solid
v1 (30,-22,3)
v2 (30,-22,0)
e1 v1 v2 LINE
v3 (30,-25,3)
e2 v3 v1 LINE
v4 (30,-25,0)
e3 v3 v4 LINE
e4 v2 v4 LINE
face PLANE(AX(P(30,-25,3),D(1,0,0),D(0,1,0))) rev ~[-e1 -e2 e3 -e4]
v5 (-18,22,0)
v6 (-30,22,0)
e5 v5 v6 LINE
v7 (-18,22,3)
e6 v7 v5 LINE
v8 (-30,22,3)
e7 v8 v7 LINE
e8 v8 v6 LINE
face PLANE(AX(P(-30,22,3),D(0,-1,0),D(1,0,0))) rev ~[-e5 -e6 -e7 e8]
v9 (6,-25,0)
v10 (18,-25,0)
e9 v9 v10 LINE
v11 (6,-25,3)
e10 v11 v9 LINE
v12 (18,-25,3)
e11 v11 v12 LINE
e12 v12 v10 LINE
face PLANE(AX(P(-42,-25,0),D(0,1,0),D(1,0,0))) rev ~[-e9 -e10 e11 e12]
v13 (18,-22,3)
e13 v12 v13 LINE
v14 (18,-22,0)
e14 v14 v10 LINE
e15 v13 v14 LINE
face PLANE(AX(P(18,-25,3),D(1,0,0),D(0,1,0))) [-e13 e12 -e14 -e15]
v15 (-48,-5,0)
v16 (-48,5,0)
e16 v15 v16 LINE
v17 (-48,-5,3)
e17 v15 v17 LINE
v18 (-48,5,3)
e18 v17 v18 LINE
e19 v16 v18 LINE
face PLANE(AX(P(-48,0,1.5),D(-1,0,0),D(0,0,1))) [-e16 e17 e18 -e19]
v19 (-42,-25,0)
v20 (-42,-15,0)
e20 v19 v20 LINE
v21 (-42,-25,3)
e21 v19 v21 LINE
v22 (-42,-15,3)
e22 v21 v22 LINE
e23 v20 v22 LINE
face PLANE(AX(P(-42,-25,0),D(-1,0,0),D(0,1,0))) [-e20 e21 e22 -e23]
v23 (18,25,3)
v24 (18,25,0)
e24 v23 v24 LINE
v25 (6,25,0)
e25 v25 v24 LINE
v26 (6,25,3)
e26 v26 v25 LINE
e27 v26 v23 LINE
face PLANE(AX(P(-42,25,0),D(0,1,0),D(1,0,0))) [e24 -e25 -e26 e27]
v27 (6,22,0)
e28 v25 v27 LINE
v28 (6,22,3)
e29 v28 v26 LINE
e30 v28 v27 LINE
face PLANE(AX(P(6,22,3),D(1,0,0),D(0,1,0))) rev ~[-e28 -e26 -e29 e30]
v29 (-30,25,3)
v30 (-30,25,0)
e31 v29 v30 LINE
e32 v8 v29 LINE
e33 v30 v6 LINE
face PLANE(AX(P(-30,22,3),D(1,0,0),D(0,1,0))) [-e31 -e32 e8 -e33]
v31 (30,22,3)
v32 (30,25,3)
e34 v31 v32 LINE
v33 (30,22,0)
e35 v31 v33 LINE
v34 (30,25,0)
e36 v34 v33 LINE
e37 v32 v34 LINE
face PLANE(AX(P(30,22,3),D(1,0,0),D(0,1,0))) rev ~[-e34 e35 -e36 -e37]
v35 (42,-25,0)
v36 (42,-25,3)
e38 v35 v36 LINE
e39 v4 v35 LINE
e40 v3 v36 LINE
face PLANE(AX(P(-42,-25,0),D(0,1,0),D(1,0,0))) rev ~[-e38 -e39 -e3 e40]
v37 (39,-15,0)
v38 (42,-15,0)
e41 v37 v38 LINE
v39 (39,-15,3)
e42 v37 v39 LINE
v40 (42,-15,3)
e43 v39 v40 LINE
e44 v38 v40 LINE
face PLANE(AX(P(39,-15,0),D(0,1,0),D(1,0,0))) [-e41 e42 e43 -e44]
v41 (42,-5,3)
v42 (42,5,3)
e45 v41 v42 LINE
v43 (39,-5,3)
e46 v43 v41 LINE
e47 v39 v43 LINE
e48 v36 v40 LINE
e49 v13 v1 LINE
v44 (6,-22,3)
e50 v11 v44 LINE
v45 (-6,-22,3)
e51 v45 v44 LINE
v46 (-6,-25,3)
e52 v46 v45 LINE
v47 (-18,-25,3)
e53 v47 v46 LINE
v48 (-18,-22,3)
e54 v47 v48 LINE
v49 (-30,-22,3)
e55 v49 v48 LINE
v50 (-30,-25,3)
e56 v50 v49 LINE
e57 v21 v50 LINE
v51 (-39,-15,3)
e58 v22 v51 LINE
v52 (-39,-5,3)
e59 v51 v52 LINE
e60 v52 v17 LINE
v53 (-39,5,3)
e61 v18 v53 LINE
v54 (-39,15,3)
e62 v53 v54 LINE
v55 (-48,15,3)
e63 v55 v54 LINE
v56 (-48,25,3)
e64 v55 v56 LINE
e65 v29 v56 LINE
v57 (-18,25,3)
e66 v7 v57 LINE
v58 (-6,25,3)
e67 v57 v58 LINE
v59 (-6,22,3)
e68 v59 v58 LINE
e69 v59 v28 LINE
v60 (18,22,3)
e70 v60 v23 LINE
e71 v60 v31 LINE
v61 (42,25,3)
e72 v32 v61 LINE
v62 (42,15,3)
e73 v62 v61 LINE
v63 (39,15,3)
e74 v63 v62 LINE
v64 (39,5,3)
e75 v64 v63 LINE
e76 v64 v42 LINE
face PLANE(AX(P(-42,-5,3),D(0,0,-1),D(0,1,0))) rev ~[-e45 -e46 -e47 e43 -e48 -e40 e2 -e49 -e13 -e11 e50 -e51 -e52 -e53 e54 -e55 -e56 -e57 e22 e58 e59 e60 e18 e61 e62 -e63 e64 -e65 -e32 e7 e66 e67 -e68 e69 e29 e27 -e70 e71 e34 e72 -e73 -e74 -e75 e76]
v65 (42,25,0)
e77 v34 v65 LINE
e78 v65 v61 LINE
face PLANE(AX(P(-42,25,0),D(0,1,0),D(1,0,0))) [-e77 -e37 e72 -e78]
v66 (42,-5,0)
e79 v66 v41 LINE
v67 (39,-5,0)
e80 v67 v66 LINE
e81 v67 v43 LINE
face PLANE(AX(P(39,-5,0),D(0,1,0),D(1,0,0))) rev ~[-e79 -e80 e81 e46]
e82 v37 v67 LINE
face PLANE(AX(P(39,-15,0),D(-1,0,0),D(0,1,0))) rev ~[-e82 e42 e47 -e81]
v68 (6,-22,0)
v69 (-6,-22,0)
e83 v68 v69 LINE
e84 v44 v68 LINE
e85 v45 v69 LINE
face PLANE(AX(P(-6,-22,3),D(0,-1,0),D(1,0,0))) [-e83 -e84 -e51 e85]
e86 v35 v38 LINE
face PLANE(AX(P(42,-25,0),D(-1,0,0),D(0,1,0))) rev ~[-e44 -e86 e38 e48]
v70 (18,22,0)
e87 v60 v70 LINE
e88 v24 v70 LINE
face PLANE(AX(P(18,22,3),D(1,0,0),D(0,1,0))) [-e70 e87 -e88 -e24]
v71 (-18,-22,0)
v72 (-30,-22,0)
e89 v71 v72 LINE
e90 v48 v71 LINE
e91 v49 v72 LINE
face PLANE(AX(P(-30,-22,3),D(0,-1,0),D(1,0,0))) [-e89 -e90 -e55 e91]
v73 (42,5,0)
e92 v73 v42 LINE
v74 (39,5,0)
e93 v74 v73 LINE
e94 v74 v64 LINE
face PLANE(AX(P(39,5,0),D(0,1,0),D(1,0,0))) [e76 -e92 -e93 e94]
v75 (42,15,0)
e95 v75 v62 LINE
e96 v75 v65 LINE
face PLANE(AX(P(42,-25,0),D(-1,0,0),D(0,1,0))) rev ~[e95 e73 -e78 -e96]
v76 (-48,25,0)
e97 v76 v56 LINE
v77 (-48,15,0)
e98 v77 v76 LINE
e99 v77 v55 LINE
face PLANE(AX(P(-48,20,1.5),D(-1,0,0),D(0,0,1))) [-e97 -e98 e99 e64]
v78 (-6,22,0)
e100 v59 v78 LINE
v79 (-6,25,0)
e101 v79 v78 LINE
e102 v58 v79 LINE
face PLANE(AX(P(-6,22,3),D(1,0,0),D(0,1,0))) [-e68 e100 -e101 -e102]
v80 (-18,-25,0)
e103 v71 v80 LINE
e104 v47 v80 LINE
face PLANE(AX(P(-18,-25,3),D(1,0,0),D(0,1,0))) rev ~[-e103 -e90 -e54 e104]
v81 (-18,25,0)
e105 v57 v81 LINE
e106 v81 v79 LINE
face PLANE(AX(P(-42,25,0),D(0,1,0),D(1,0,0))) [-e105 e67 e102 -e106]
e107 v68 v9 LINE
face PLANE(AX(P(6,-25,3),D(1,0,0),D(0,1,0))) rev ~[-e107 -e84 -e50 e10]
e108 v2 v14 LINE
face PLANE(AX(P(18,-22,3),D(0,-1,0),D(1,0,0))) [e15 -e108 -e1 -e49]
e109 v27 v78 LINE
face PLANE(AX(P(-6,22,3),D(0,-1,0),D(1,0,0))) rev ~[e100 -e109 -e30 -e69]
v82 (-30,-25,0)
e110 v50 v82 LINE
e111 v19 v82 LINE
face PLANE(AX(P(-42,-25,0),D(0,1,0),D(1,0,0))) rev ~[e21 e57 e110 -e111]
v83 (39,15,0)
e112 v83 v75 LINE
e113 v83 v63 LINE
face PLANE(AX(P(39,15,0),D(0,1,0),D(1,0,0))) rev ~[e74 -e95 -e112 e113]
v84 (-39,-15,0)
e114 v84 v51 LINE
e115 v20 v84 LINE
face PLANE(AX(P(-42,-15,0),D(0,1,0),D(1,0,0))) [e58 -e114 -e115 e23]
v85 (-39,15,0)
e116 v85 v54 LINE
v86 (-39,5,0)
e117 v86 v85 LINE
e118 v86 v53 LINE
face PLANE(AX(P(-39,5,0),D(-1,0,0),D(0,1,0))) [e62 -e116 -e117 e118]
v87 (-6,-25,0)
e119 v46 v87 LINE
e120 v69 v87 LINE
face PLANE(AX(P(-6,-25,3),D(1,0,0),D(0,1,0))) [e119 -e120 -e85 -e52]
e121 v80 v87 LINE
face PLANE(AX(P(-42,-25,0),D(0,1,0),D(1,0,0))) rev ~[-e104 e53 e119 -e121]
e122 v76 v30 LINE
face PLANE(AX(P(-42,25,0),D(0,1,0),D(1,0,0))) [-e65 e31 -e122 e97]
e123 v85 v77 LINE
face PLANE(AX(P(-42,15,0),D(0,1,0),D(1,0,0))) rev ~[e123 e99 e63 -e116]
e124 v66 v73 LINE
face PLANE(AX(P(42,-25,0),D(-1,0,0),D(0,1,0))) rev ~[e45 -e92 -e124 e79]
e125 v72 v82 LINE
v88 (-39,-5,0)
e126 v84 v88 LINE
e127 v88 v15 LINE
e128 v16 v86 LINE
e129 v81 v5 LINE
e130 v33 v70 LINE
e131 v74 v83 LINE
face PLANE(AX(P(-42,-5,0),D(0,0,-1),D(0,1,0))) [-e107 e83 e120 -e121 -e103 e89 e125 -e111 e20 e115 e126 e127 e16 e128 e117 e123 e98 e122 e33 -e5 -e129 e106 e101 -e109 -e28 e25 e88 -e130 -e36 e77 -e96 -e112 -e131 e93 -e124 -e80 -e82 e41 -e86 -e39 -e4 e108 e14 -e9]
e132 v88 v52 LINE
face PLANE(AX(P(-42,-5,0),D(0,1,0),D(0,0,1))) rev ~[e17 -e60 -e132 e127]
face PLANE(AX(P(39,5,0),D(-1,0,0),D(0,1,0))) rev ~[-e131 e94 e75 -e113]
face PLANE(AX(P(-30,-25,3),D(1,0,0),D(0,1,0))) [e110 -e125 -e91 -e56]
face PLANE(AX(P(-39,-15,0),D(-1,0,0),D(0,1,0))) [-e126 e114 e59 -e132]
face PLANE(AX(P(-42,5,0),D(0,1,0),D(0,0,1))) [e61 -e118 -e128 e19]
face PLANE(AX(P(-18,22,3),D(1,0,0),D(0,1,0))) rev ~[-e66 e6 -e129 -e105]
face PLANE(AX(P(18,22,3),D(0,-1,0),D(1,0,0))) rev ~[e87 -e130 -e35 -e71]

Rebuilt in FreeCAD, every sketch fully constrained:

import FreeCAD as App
import Part
import Sketcher
Q = App.Units.Quantity


def add_polygon(sketch, points):
    """Adds a closed chain of lines whose ends are joined by coincident constraints."""
    first, n = sketch.GeometryCount, len(points)
    for a, b in zip(points, points[1:] + points[:1]):
        sketch.addGeometry(Part.LineSegment(App.Vector(*a, 0), App.Vector(*b, 0)), False)
    for i in range(n):
        sketch.addConstraint(Sketcher.Constraint("Coincident", first + i, 2, first + (i + 1) % n, 1))

doc = App.newDocument("Part")
params = doc.addObject("Spreadsheet::Sheet", "Params")
for row, (alias, value) in enumerate([
    ("sketch1_width", "84 mm"),
    ("sketch1_height", "50 mm"),
    ("pad1_length", "3 mm"),
    ("sketch2_width", "12 mm"),
    ("sketch2_height", "3 mm"),
    ("sketch3_width", "12 mm"),
    ("sketch3_height", "3 mm"),
    ("sketch4_width", "12 mm"),
    ("sketch4_height", "3 mm"),
    ("sketch5_width", "12 mm"),
    ("sketch5_height", "3 mm"),
    ("sketch6_width", "12 mm"),
    ("sketch6_height", "3 mm"),
    ("sketch7_width", "12 mm"),
    ("sketch7_height", "3 mm"),
    ("sketch8_width", "3 mm"),
    ("sketch8_height", "10 mm"),
    ("sketch9_width", "3 mm"),
    ("sketch9_height", "10 mm"),
    ("sketch10_width", "3 mm"),
    ("sketch10_height", "10 mm"),
    ("sketch11_width", "3 mm"),
    ("sketch11_height", "10 mm"),
    ("sketch12_width", "10 mm"),
    ("sketch12_height", "3 mm"),
    ("pad2_length", "6 mm"),
], start=1):
    params.set(f"A{row}", alias)
    params.set(f"B{row}", "=" + value)
    params.setAlias(f"B{row}", alias)

body = doc.addObject("PartDesign::Body", "Body")

sketch1 = body.newObject("Sketcher::SketchObject", "Sketch")
sketch1.AttachmentSupport = (doc.getObject("XY_Plane"), [""])
sketch1.MapMode = "FlatFace"
add_polygon(sketch1, [(-42, 25), (-42, -25), (42, -25), (42, 25)])
sketch1.addConstraint(Sketcher.Constraint("Vertical", 0))
sketch1.addConstraint(Sketcher.Constraint("Horizontal", 1))
sketch1.addConstraint(Sketcher.Constraint("Vertical", 2))
sketch1.addConstraint(Sketcher.Constraint("Horizontal", 3))
sketch1.addConstraint(Sketcher.Constraint("Symmetric", 0, 2, 2, 2, -1, 1))
sketch1.addConstraint(Sketcher.Constraint("DistanceX", 1, 1, 1, 2, Q("84 mm")))
sketch1.addConstraint(Sketcher.Constraint("DistanceY", 0, 2, 0, 1, Q("50 mm")))
sketch1.setExpression("Constraints[9]", "Params.sketch1_width")
sketch1.setExpression("Constraints[10]", "Params.sketch1_height")
pad1 = body.newObject("PartDesign::Pad", "Pad")
pad1.Profile = sketch1
pad1.setExpression("Length", "Params.pad1_length")

sketch2 = body.newObject("Sketcher::SketchObject", "Sketch001")
sketch2.AttachmentSupport = (doc.getObject("XY_Plane"), [""])
sketch2.MapMode = "FlatFace"
sketch2.AttachmentOffset = App.Placement(App.Vector(0, 0, 3), App.Rotation())
add_polygon(sketch2, [(18, 25), (18, 22), (30, 22), (30, 25)])
sketch2.addConstraint(Sketcher.Constraint("Vertical", 0))
sketch2.addConstraint(Sketcher.Constraint("Horizontal", 1))
sketch2.addConstraint(Sketcher.Constraint("Vertical", 2))
sketch2.addConstraint(Sketcher.Constraint("Horizontal", 3))
sketch2.addConstraint(Sketcher.Constraint("DistanceX", 1, 1, 1, 2, Q("12 mm")))
sketch2.addConstraint(Sketcher.Constraint("DistanceY", 0, 2, 0, 1, Q("3 mm")))
sketch2.addConstraint(Sketcher.Constraint("DistanceX", -1, 1, 0, 2, Q("18 mm")))
sketch2.addConstraint(Sketcher.Constraint("DistanceY", -1, 1, 0, 2, Q("22 mm")))
sketch2.setExpression("Constraints[8]", "Params.sketch2_width")
sketch2.setExpression("Constraints[9]", "Params.sketch2_height")
pocket1 = body.newObject("PartDesign::Pocket", "Pocket")
pocket1.Profile = sketch2
pocket1.Type = "UpToFirst"

sketch3 = body.newObject("Sketcher::SketchObject", "Sketch002")
sketch3.AttachmentSupport = (doc.getObject("XY_Plane"), [""])
sketch3.MapMode = "FlatFace"
sketch3.AttachmentOffset = App.Placement(App.Vector(0, 0, 3), App.Rotation())
add_polygon(sketch3, [(-30, 25), (-30, 22), (-18, 22), (-18, 25)])
sketch3.addConstraint(Sketcher.Constraint("Vertical", 0))
sketch3.addConstraint(Sketcher.Constraint("Horizontal", 1))
sketch3.addConstraint(Sketcher.Constraint("Vertical", 2))
sketch3.addConstraint(Sketcher.Constraint("Horizontal", 3))
sketch3.addConstraint(Sketcher.Constraint("DistanceX", 1, 1, 1, 2, Q("12 mm")))
sketch3.addConstraint(Sketcher.Constraint("DistanceY", 0, 2, 0, 1, Q("3 mm")))
sketch3.addConstraint(Sketcher.Constraint("DistanceX", 0, 2, -1, 1, Q("30 mm")))
sketch3.addConstraint(Sketcher.Constraint("DistanceY", -1, 1, 0, 2, Q("22 mm")))
sketch3.setExpression("Constraints[8]", "Params.sketch3_width")
sketch3.setExpression("Constraints[9]", "Params.sketch3_height")
pocket2 = body.newObject("PartDesign::Pocket", "Pocket001")
pocket2.Profile = sketch3
pocket2.Type = "UpToFirst"

sketch4 = body.newObject("Sketcher::SketchObject", "Sketch003")
sketch4.AttachmentSupport = (doc.getObject("XY_Plane"), [""])
sketch4.MapMode = "FlatFace"
sketch4.AttachmentOffset = App.Placement(App.Vector(0, 0, 3), App.Rotation())
add_polygon(sketch4, [(-6, 25), (-6, 22), (6, 22), (6, 25)])
sketch4.addConstraint(Sketcher.Constraint("Vertical", 0))
sketch4.addConstraint(Sketcher.Constraint("Horizontal", 1))
sketch4.addConstraint(Sketcher.Constraint("Vertical", 2))
sketch4.addConstraint(Sketcher.Constraint("Horizontal", 3))
sketch4.addConstraint(Sketcher.Constraint("DistanceX", 1, 1, 1, 2, Q("12 mm")))
sketch4.addConstraint(Sketcher.Constraint("DistanceY", 0, 2, 0, 1, Q("3 mm")))
sketch4.addConstraint(Sketcher.Constraint("DistanceX", 0, 2, -1, 1, Q("6 mm")))
sketch4.addConstraint(Sketcher.Constraint("DistanceY", -1, 1, 0, 2, Q("22 mm")))
sketch4.setExpression("Constraints[8]", "Params.sketch4_width")
sketch4.setExpression("Constraints[9]", "Params.sketch4_height")
pocket3 = body.newObject("PartDesign::Pocket", "Pocket002")
pocket3.Profile = sketch4
pocket3.Type = "UpToFirst"

sketch5 = body.newObject("Sketcher::SketchObject", "Sketch004")
sketch5.AttachmentSupport = (doc.getObject("XY_Plane"), [""])
sketch5.MapMode = "FlatFace"
sketch5.AttachmentOffset = App.Placement(App.Vector(0, 0, 3), App.Rotation())
add_polygon(sketch5, [(-6, -22), (-6, -25), (6, -25), (6, -22)])
sketch5.addConstraint(Sketcher.Constraint("Vertical", 0))
sketch5.addConstraint(Sketcher.Constraint("Horizontal", 1))
sketch5.addConstraint(Sketcher.Constraint("Vertical", 2))
sketch5.addConstraint(Sketcher.Constraint("Horizontal", 3))
sketch5.addConstraint(Sketcher.Constraint("DistanceX", 1, 1, 1, 2, Q("12 mm")))
sketch5.addConstraint(Sketcher.Constraint("DistanceY", 0, 2, 0, 1, Q("3 mm")))
sketch5.addConstraint(Sketcher.Constraint("DistanceX", 0, 2, -1, 1, Q("6 mm")))
sketch5.addConstraint(Sketcher.Constraint("DistanceY", 0, 2, -1, 1, Q("25 mm")))
sketch5.setExpression("Constraints[8]", "Params.sketch5_width")
sketch5.setExpression("Constraints[9]", "Params.sketch5_height")
pocket4 = body.newObject("PartDesign::Pocket", "Pocket003")
pocket4.Profile = sketch5
pocket4.Type = "UpToFirst"

sketch6 = body.newObject("Sketcher::SketchObject", "Sketch005")
sketch6.AttachmentSupport = (doc.getObject("XY_Plane"), [""])
sketch6.MapMode = "FlatFace"
sketch6.AttachmentOffset = App.Placement(App.Vector(0, 0, 3), App.Rotation())
add_polygon(sketch6, [(-30, -22), (-30, -25), (-18, -25), (-18, -22)])
sketch6.addConstraint(Sketcher.Constraint("Vertical", 0))
sketch6.addConstraint(Sketcher.Constraint("Horizontal", 1))
sketch6.addConstraint(Sketcher.Constraint("Vertical", 2))
sketch6.addConstraint(Sketcher.Constraint("Horizontal", 3))
sketch6.addConstraint(Sketcher.Constraint("DistanceX", 1, 1, 1, 2, Q("12 mm")))
sketch6.addConstraint(Sketcher.Constraint("DistanceY", 0, 2, 0, 1, Q("3 mm")))
sketch6.addConstraint(Sketcher.Constraint("DistanceX", 0, 2, -1, 1, Q("30 mm")))
sketch6.addConstraint(Sketcher.Constraint("DistanceY", 0, 2, -1, 1, Q("25 mm")))
sketch6.setExpression("Constraints[8]", "Params.sketch6_width")
sketch6.setExpression("Constraints[9]", "Params.sketch6_height")
pocket5 = body.newObject("PartDesign::Pocket", "Pocket004")
pocket5.Profile = sketch6
pocket5.Type = "UpToFirst"

sketch7 = body.newObject("Sketcher::SketchObject", "Sketch006")
sketch7.AttachmentSupport = (doc.getObject("XY_Plane"), [""])
sketch7.MapMode = "FlatFace"
sketch7.AttachmentOffset = App.Placement(App.Vector(0, 0, 3), App.Rotation())
add_polygon(sketch7, [(18, -22), (18, -25), (30, -25), (30, -22)])
sketch7.addConstraint(Sketcher.Constraint("Vertical", 0))
sketch7.addConstraint(Sketcher.Constraint("Horizontal", 1))
sketch7.addConstraint(Sketcher.Constraint("Vertical", 2))
sketch7.addConstraint(Sketcher.Constraint("Horizontal", 3))
sketch7.addConstraint(Sketcher.Constraint("DistanceX", 1, 1, 1, 2, Q("12 mm")))
sketch7.addConstraint(Sketcher.Constraint("DistanceY", 0, 2, 0, 1, Q("3 mm")))
sketch7.addConstraint(Sketcher.Constraint("DistanceX", -1, 1, 0, 2, Q("18 mm")))
sketch7.addConstraint(Sketcher.Constraint("DistanceY", 0, 2, -1, 1, Q("25 mm")))
sketch7.setExpression("Constraints[8]", "Params.sketch7_width")
sketch7.setExpression("Constraints[9]", "Params.sketch7_height")
pocket6 = body.newObject("PartDesign::Pocket", "Pocket005")
pocket6.Profile = sketch7
pocket6.Type = "UpToFirst"

sketch8 = body.newObject("Sketcher::SketchObject", "Sketch007")
sketch8.AttachmentSupport = (doc.getObject("XY_Plane"), [""])
sketch8.MapMode = "FlatFace"
add_polygon(sketch8, [(39, 15), (39, 5), (42, 5), (42, 15)])
sketch8.addConstraint(Sketcher.Constraint("Vertical", 0))
sketch8.addConstraint(Sketcher.Constraint("Horizontal", 1))
sketch8.addConstraint(Sketcher.Constraint("Vertical", 2))
sketch8.addConstraint(Sketcher.Constraint("Horizontal", 3))
sketch8.addConstraint(Sketcher.Constraint("DistanceX", 1, 1, 1, 2, Q("3 mm")))
sketch8.addConstraint(Sketcher.Constraint("DistanceY", 0, 2, 0, 1, Q("10 mm")))
sketch8.addConstraint(Sketcher.Constraint("DistanceX", -1, 1, 0, 2, Q("39 mm")))
sketch8.addConstraint(Sketcher.Constraint("DistanceY", -1, 1, 0, 2, Q("5 mm")))
sketch8.setExpression("Constraints[8]", "Params.sketch8_width")
sketch8.setExpression("Constraints[9]", "Params.sketch8_height")
pocket7 = body.newObject("PartDesign::Pocket", "Pocket006")
pocket7.Profile = sketch8
pocket7.Type = "UpToFirst"
pocket7.Reversed = True

sketch9 = body.newObject("Sketcher::SketchObject", "Sketch008")
sketch9.AttachmentSupport = (doc.getObject("XY_Plane"), [""])
sketch9.MapMode = "FlatFace"
add_polygon(sketch9, [(-42, 15), (-42, 5), (-39, 5), (-39, 15)])
sketch9.addConstraint(Sketcher.Constraint("Vertical", 0))
sketch9.addConstraint(Sketcher.Constraint("Horizontal", 1))
sketch9.addConstraint(Sketcher.Constraint("Vertical", 2))
sketch9.addConstraint(Sketcher.Constraint("Horizontal", 3))
sketch9.addConstraint(Sketcher.Constraint("DistanceX", 1, 1, 1, 2, Q("3 mm")))
sketch9.addConstraint(Sketcher.Constraint("DistanceY", 0, 2, 0, 1, Q("10 mm")))
sketch9.addConstraint(Sketcher.Constraint("DistanceX", 0, 2, -1, 1, Q("42 mm")))
sketch9.addConstraint(Sketcher.Constraint("DistanceY", -1, 1, 0, 2, Q("5 mm")))
sketch9.setExpression("Constraints[8]", "Params.sketch9_width")
sketch9.setExpression("Constraints[9]", "Params.sketch9_height")
pocket8 = body.newObject("PartDesign::Pocket", "Pocket007")
pocket8.Profile = sketch9
pocket8.Type = "UpToFirst"
pocket8.Reversed = True

sketch10 = body.newObject("Sketcher::SketchObject", "Sketch009")
sketch10.AttachmentSupport = (doc.getObject("XY_Plane"), [""])
sketch10.MapMode = "FlatFace"
add_polygon(sketch10, [(-42, -5), (-42, -15), (-39, -15), (-39, -5)])
sketch10.addConstraint(Sketcher.Constraint("Vertical", 0))
sketch10.addConstraint(Sketcher.Constraint("Horizontal", 1))
sketch10.addConstraint(Sketcher.Constraint("Vertical", 2))
sketch10.addConstraint(Sketcher.Constraint("Horizontal", 3))
sketch10.addConstraint(Sketcher.Constraint("DistanceX", 1, 1, 1, 2, Q("3 mm")))
sketch10.addConstraint(Sketcher.Constraint("DistanceY", 0, 2, 0, 1, Q("10 mm")))
sketch10.addConstraint(Sketcher.Constraint("DistanceX", 0, 2, -1, 1, Q("42 mm")))
sketch10.addConstraint(Sketcher.Constraint("DistanceY", 0, 2, -1, 1, Q("15 mm")))
sketch10.setExpression("Constraints[8]", "Params.sketch10_width")
sketch10.setExpression("Constraints[9]", "Params.sketch10_height")
pocket9 = body.newObject("PartDesign::Pocket", "Pocket008")
pocket9.Profile = sketch10
pocket9.Type = "UpToFirst"
pocket9.Reversed = True

sketch11 = body.newObject("Sketcher::SketchObject", "Sketch010")
sketch11.AttachmentSupport = (doc.getObject("XY_Plane"), [""])
sketch11.MapMode = "FlatFace"
add_polygon(sketch11, [(39, -5), (39, -15), (42, -15), (42, -5)])
sketch11.addConstraint(Sketcher.Constraint("Vertical", 0))
sketch11.addConstraint(Sketcher.Constraint("Horizontal", 1))
sketch11.addConstraint(Sketcher.Constraint("Vertical", 2))
sketch11.addConstraint(Sketcher.Constraint("Horizontal", 3))
sketch11.addConstraint(Sketcher.Constraint("DistanceX", 1, 1, 1, 2, Q("3 mm")))
sketch11.addConstraint(Sketcher.Constraint("DistanceY", 0, 2, 0, 1, Q("10 mm")))
sketch11.addConstraint(Sketcher.Constraint("DistanceX", -1, 1, 0, 2, Q("39 mm")))
sketch11.addConstraint(Sketcher.Constraint("DistanceY", 0, 2, -1, 1, Q("15 mm")))
sketch11.setExpression("Constraints[8]", "Params.sketch11_width")
sketch11.setExpression("Constraints[9]", "Params.sketch11_height")
pocket10 = body.newObject("PartDesign::Pocket", "Pocket009")
pocket10.Profile = sketch11
pocket10.Type = "UpToFirst"
pocket10.Reversed = True

sketch12 = body.newObject("Sketcher::SketchObject", "Sketch011")
sketch12.AttachmentSupport = (doc.getObject("YZ_Plane"), [""])
sketch12.MapMode = "FlatFace"
sketch12.AttachmentOffset = App.Placement(App.Vector(0, 0, -42), App.Rotation())
add_polygon(sketch12, [(5, 0), (-5, 0), (-5, 3), (5, 3)])
add_polygon(sketch12, [(25, 0), (15, 0), (15, 3), (25, 3)])
sketch12.addConstraint(Sketcher.Constraint("Horizontal", 0))
sketch12.addConstraint(Sketcher.Constraint("Vertical", 1))
sketch12.addConstraint(Sketcher.Constraint("Horizontal", 2))
sketch12.addConstraint(Sketcher.Constraint("Vertical", 3))
sketch12.addConstraint(Sketcher.Constraint("Horizontal", 4))
sketch12.addConstraint(Sketcher.Constraint("Vertical", 5))
sketch12.addConstraint(Sketcher.Constraint("Horizontal", 6))
sketch12.addConstraint(Sketcher.Constraint("Vertical", 7))
sketch12.addConstraint(Sketcher.Constraint("Symmetric", 0, 2, 3, 2, -1, 1))
sketch12.addConstraint(Sketcher.Constraint("PointOnObject", 4, 2, -1))
sketch12.addConstraint(Sketcher.Constraint("Horizontal", 2, 2, 5, 2))
sketch12.addConstraint(Sketcher.Constraint("Equal", 2, 4))
sketch12.addConstraint(Sketcher.Constraint("DistanceX", 0, 2, 0, 1, Q("10 mm")))
sketch12.addConstraint(Sketcher.Constraint("DistanceY", 1, 1, 1, 2, Q("3 mm")))
sketch12.addConstraint(Sketcher.Constraint("DistanceX", -1, 1, 4, 2, Q("15 mm")))
sketch12.setExpression("Constraints[20]", "Params.sketch12_width")
sketch12.setExpression("Constraints[21]", "Params.sketch12_height")
pad2 = body.newObject("PartDesign::Pad", "Pad001")
pad2.Profile = sketch12
pad2.setExpression("Length", "Params.pad2_length")
pad2.Reversed = True

doc.recompute()
